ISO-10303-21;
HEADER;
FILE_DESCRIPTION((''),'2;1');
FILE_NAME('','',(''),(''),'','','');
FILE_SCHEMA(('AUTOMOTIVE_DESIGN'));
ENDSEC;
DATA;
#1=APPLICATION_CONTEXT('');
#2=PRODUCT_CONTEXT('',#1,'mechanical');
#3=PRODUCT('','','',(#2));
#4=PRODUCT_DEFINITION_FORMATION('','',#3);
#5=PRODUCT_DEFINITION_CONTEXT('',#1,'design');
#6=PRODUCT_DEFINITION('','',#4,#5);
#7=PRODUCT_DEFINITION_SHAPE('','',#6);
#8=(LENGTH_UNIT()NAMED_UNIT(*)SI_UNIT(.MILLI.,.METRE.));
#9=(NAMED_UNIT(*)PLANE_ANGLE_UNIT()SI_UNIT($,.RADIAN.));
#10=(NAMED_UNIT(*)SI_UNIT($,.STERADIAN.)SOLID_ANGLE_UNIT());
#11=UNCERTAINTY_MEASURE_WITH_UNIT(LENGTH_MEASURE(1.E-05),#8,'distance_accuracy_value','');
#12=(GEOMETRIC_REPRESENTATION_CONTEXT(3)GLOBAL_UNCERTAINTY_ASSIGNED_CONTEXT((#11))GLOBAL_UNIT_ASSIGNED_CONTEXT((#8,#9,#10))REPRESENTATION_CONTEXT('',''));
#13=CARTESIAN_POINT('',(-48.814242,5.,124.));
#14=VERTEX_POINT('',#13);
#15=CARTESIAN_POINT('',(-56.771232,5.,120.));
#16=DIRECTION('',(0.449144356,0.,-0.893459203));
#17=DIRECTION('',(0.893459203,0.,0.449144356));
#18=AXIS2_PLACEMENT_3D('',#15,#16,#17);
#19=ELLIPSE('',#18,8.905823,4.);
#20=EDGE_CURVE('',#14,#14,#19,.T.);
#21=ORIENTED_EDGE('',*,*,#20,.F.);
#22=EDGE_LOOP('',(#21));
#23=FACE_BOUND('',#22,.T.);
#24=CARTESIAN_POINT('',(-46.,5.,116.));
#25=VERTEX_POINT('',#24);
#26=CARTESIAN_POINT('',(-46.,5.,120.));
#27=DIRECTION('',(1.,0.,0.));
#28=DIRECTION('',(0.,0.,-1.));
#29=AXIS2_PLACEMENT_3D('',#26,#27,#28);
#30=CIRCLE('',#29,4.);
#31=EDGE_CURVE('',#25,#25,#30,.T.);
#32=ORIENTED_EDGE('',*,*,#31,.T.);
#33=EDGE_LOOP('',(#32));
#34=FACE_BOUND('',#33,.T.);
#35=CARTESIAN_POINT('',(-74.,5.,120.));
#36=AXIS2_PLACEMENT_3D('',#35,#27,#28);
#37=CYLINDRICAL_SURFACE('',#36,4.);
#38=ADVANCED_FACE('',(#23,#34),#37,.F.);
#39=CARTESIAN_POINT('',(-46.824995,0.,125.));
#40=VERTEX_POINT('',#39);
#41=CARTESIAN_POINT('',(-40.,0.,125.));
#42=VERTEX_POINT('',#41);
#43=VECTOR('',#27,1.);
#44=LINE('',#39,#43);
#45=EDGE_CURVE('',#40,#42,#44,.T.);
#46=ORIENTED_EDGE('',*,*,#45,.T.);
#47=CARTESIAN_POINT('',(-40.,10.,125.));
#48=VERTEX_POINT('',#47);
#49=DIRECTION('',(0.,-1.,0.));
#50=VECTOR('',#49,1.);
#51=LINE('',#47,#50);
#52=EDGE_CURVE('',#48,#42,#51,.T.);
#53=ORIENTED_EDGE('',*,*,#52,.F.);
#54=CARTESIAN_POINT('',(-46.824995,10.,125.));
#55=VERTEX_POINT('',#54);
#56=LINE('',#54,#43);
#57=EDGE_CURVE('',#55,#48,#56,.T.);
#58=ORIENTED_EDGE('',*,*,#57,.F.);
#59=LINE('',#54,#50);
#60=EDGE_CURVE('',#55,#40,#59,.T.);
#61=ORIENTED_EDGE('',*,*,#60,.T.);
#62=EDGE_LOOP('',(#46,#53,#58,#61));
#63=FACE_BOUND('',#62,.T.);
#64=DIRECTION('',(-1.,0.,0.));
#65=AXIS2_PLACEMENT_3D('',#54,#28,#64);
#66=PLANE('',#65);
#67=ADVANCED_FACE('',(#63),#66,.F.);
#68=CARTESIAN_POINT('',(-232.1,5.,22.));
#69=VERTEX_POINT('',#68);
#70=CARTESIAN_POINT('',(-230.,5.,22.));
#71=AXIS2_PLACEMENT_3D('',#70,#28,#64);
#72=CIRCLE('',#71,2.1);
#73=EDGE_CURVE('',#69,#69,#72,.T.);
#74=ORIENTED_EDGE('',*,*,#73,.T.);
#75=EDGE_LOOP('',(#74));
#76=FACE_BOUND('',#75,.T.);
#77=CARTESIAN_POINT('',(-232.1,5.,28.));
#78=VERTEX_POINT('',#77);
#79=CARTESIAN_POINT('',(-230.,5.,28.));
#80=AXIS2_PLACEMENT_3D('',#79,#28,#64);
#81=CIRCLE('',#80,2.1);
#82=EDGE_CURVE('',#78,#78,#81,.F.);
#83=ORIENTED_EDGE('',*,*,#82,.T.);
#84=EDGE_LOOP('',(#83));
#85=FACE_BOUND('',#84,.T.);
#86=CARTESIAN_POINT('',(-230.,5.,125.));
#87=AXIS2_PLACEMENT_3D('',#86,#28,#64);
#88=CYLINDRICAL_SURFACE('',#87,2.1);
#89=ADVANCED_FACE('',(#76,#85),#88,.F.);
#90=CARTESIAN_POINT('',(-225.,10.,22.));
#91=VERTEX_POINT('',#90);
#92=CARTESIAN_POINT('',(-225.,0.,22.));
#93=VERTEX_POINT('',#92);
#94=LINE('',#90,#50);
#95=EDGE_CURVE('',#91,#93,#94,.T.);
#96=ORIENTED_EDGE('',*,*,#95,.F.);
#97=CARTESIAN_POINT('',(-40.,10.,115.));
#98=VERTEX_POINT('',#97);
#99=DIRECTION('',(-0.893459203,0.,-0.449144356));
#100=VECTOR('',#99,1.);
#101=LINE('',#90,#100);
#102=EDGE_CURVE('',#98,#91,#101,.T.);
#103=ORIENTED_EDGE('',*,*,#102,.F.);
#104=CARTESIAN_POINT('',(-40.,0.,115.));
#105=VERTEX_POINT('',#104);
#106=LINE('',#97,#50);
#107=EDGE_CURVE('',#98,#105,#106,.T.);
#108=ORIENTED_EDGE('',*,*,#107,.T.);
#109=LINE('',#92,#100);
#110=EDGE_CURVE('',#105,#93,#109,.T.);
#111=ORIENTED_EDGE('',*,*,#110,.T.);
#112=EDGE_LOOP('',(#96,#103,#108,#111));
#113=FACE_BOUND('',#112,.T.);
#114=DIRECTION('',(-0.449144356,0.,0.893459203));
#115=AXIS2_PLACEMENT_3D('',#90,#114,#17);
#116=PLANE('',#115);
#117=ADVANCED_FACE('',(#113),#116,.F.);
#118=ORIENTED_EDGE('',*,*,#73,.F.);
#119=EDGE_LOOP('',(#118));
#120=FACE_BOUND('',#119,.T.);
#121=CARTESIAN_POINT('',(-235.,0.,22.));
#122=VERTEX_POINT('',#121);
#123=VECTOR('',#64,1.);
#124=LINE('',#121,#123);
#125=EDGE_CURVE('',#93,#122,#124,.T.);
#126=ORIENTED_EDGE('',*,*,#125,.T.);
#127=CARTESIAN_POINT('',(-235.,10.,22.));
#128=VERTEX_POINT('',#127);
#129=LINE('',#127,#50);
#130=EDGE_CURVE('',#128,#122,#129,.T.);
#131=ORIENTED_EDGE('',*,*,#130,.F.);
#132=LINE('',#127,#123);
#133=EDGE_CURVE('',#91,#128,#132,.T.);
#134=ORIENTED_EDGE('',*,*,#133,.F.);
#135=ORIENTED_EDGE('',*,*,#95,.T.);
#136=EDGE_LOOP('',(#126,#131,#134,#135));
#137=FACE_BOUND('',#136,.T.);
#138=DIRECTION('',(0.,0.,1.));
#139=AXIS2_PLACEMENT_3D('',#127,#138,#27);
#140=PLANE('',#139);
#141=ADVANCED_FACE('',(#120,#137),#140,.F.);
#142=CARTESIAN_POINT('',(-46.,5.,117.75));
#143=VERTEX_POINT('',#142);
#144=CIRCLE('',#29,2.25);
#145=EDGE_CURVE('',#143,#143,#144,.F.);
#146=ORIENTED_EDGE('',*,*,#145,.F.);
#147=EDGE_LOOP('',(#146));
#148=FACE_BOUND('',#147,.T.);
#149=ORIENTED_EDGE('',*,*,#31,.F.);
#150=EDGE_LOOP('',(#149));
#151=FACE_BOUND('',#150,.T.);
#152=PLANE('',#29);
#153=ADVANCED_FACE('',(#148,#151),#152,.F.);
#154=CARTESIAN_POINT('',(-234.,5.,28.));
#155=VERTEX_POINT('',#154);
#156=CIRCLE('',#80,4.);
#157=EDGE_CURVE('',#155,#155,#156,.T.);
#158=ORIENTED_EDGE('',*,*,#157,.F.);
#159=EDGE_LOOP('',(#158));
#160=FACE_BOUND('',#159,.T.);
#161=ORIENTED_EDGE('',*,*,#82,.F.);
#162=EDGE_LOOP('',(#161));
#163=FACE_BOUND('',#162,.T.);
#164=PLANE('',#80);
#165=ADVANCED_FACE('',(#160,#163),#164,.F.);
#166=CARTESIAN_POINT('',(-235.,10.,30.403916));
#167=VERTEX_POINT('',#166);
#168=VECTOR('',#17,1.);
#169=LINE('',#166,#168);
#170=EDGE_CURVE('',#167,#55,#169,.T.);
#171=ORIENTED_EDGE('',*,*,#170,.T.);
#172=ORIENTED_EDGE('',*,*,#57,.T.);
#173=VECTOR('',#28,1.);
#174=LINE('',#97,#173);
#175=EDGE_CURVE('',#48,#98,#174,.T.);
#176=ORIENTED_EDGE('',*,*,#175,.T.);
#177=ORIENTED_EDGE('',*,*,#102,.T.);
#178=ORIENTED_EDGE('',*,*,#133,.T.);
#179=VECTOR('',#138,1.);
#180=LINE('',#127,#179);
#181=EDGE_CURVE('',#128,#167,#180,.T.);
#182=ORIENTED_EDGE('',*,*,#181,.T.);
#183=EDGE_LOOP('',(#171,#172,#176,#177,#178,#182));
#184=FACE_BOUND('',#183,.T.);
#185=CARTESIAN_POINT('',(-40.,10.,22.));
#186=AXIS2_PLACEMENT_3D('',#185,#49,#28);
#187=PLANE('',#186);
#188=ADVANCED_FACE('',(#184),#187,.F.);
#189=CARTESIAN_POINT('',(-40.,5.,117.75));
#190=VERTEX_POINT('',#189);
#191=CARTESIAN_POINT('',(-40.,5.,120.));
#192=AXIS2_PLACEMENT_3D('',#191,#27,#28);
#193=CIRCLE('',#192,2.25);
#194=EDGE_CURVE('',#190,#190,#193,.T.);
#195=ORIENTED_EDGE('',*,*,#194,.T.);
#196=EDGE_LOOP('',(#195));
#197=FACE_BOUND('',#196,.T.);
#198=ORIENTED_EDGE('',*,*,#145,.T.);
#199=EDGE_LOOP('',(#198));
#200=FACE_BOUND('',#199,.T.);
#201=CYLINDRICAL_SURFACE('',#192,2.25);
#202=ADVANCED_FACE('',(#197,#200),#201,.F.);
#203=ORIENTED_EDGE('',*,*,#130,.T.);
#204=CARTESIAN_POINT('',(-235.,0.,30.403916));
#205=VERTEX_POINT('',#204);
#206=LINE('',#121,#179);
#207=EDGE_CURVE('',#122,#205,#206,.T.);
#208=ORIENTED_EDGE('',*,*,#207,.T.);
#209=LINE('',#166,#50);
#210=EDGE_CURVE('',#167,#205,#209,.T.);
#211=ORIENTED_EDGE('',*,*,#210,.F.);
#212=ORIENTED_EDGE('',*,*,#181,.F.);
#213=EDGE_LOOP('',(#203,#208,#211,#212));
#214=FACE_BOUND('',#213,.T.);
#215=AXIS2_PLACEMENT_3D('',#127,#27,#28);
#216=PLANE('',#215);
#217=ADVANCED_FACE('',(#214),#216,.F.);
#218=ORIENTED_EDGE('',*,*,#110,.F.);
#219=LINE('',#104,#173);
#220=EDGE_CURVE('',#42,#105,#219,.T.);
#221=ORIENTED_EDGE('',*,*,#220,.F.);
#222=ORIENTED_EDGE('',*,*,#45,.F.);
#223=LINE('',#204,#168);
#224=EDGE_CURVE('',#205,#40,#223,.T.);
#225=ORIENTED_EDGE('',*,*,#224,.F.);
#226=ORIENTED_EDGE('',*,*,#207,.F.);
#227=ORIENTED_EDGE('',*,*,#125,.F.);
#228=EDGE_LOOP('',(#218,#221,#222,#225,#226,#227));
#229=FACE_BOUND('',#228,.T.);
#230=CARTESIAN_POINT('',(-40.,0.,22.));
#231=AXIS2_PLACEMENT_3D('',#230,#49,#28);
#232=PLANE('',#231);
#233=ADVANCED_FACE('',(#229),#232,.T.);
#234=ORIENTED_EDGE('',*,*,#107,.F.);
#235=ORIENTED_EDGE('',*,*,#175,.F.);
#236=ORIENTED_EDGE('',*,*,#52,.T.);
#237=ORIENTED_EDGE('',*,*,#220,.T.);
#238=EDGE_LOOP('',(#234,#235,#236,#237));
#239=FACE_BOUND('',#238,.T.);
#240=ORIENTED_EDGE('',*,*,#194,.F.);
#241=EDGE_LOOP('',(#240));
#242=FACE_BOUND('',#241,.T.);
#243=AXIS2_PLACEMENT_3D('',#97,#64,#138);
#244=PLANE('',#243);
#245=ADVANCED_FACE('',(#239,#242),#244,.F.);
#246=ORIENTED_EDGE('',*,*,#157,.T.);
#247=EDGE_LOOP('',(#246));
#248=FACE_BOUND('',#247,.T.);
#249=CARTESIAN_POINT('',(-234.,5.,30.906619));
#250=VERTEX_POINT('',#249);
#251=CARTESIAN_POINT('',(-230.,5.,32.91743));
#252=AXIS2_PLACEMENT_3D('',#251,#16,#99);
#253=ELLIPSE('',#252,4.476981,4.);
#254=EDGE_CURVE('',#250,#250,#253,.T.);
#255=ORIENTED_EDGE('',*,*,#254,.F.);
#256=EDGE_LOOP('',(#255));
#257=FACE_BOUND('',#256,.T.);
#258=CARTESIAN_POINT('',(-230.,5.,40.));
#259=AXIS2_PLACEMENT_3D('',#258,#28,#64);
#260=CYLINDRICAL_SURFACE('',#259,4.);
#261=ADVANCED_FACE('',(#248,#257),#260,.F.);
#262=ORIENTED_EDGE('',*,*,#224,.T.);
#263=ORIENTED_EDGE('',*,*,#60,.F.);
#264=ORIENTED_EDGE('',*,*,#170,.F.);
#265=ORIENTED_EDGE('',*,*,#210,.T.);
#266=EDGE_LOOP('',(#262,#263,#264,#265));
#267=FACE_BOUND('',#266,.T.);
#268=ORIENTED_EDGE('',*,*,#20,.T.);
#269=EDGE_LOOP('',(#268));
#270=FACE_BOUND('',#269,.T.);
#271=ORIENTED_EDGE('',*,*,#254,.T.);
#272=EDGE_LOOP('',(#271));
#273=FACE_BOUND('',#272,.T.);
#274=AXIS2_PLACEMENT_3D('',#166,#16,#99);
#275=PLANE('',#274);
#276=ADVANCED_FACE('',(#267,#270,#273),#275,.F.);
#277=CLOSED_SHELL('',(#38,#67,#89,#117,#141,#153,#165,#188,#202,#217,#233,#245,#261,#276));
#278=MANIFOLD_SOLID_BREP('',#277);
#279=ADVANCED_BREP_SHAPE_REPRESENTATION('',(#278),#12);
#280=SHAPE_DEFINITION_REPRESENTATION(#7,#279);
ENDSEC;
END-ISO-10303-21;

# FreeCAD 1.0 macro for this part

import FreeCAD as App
import Part
import Sketcher
Q = App.Units.Quantity


def add_polygon(sketch, points):
    """Adds a closed chain of lines whose ends are joined by coincident constraints."""
    first, n = sketch.GeometryCount, len(points)
    for a, b in zip(points, points[1:] + points[:1]):
        sketch.addGeometry(Part.LineSegment(App.Vector(*a, 0), App.Vector(*b, 0)), False)
    for i in range(n):
        sketch.addConstraint(Sketcher.Constraint("Coincident", first + i, 2, first + (i + 1) % n, 1))

doc = App.newDocument("Part")
body = doc.addObject("PartDesign::Body", "Body")

sketch1 = body.newObject("Sketcher::SketchObject", "Sketch")
sketch1.AttachmentSupport = (doc.getObject("XZ_Plane"), [""])
sketch1.MapMode = "FlatFace"
add_polygon(sketch1, [(-235, 22), (-235, 30.403916), (-46.824995, 125), (-40, 125), (-40, 115), (-225, 22)])
sketch1.addConstraint(Sketcher.Constraint("Vertical", 0))
sketch1.addConstraint(Sketcher.Constraint("Horizontal", 2))
sketch1.addConstraint(Sketcher.Constraint("Vertical", 3))
sketch1.addConstraint(Sketcher.Constraint("Horizontal", 5))
sketch1.addConstraint(Sketcher.Constraint("Parallel", 1, 4))
sketch1.addConstraint(Sketcher.Constraint("Equal", 5, 3))
sketch1.addConstraint(Sketcher.Constraint("DistanceX", 5, 2, 5, 1, Q("10 mm")))
sketch1.addConstraint(Sketcher.Constraint("DistanceX", 0, 2, -1, 1, Q("235 mm")))
sketch1.addConstraint(Sketcher.Constraint("DistanceY", -1, 1, 1, 2, Q("125 mm")))
sketch1.addConstraint(Sketcher.Constraint("DistanceX", 2, 2, -1, 1, Q("40 mm")))
sketch1.addConstraint(Sketcher.Constraint("DistanceY", -1, 1, 4, 2, Q("22 mm")))
sketch1.addConstraint(Sketcher.Constraint("DistanceX", 2, 1, 2, 2, Q("6.824995 mm")))
pad1 = body.newObject("PartDesign::Pad", "Pad")
pad1.Profile = sketch1
pad1.Length = 10
pad1.Reversed = True

sketch2 = body.newObject("Sketcher::SketchObject", "Sketch001")
sketch2.AttachmentSupport = (doc.getObject("XY_Plane"), [""])
sketch2.MapMode = "FlatFace"
sketch2.AttachmentOffset = App.Placement(App.Vector(0, 0, 22), App.Rotation())
sketch2.addGeometry(Part.Circle(App.Vector(-230, 5, 0), App.Vector(0, 0, 1), 2.1), False)
sketch2.addConstraint(Sketcher.Constraint("Diameter", 0, Q("4.2 mm")))
sketch2.addConstraint(Sketcher.Constraint("DistanceX", 0, 3, -1, 1, Q("230 mm")))
sketch2.addConstraint(Sketcher.Constraint("DistanceY", -1, 1, 0, 3, Q("5 mm")))
pocket1 = body.newObject("PartDesign::Pocket", "Pocket")
pocket1.Profile = sketch2
pocket1.Type = "ThroughAll"
pocket1.Reversed = True

sketch3 = body.newObject("Sketcher::SketchObject", "Sketch002")
sketch3.AttachmentSupport = (doc.getObject("YZ_Plane"), [""])
sketch3.MapMode = "FlatFace"
sketch3.AttachmentOffset = App.Placement(App.Vector(0, 0, -40), App.Rotation())
sketch3.addGeometry(Part.Circle(App.Vector(5, 120, 0), App.Vector(0, 0, 1), 2.25), False)
sketch3.addConstraint(Sketcher.Constraint("Diameter", 0, Q("4.5 mm")))
sketch3.addConstraint(Sketcher.Constraint("DistanceX", -1, 1, 0, 3, Q("5 mm")))
sketch3.addConstraint(Sketcher.Constraint("DistanceY", -1, 1, 0, 3, Q("120 mm")))
doc.recompute()
hole = body.newObject("PartDesign::Hole", "Hole")
hole.Profile = sketch3
hole.ThreadType = "None"
hole.Diameter = 4.5
hole.DepthType = "ThroughAll"

sketch4 = body.newObject("Sketcher::SketchObject", "Sketch003")
sketch4.AttachmentSupport = (doc.getObject("XY_Plane"), [""])
sketch4.MapMode = "FlatFace"
sketch4.AttachmentOffset = App.Placement(App.Vector(0, 0, 28), App.Rotation())
sketch4.addGeometry(Part.Circle(App.Vector(-230, 5, 0), App.Vector(0, 0, 1), 4), False)
sketch4.addConstraint(Sketcher.Constraint("Diameter", 0, Q("8 mm")))
sketch4.addConstraint(Sketcher.Constraint("DistanceX", 0, 3, -1, 1, Q("230 mm")))
sketch4.addConstraint(Sketcher.Constraint("DistanceY", -1, 1, 0, 3, Q("5 mm")))
pocket2 = body.newObject("PartDesign::Pocket", "Pocket001")
pocket2.Profile = sketch4
pocket2.Length = 12
pocket2.Reversed = True

sketch5 = body.newObject("Sketcher::SketchObject", "Sketch004")
sketch5.AttachmentSupport = (doc.getObject("YZ_Plane"), [""])
sketch5.MapMode = "FlatFace"
sketch5.AttachmentOffset = App.Placement(App.Vector(0, 0, -46), App.Rotation())
sketch5.addGeometry(Part.Circle(App.Vector(5, 120, 0), App.Vector(0, 0, 1), 4), False)
sketch5.addConstraint(Sketcher.Constraint("Diameter", 0, Q("8 mm")))
sketch5.addConstraint(Sketcher.Constraint("DistanceX", -1, 1, 0, 3, Q("5 mm")))
sketch5.addConstraint(Sketcher.Constraint("DistanceY", -1, 1, 0, 3, Q("120 mm")))
pocket3 = body.newObject("PartDesign::Pocket", "Pocket002")
pocket3.Profile = sketch5
pocket3.Length = 28

doc.recompute()
